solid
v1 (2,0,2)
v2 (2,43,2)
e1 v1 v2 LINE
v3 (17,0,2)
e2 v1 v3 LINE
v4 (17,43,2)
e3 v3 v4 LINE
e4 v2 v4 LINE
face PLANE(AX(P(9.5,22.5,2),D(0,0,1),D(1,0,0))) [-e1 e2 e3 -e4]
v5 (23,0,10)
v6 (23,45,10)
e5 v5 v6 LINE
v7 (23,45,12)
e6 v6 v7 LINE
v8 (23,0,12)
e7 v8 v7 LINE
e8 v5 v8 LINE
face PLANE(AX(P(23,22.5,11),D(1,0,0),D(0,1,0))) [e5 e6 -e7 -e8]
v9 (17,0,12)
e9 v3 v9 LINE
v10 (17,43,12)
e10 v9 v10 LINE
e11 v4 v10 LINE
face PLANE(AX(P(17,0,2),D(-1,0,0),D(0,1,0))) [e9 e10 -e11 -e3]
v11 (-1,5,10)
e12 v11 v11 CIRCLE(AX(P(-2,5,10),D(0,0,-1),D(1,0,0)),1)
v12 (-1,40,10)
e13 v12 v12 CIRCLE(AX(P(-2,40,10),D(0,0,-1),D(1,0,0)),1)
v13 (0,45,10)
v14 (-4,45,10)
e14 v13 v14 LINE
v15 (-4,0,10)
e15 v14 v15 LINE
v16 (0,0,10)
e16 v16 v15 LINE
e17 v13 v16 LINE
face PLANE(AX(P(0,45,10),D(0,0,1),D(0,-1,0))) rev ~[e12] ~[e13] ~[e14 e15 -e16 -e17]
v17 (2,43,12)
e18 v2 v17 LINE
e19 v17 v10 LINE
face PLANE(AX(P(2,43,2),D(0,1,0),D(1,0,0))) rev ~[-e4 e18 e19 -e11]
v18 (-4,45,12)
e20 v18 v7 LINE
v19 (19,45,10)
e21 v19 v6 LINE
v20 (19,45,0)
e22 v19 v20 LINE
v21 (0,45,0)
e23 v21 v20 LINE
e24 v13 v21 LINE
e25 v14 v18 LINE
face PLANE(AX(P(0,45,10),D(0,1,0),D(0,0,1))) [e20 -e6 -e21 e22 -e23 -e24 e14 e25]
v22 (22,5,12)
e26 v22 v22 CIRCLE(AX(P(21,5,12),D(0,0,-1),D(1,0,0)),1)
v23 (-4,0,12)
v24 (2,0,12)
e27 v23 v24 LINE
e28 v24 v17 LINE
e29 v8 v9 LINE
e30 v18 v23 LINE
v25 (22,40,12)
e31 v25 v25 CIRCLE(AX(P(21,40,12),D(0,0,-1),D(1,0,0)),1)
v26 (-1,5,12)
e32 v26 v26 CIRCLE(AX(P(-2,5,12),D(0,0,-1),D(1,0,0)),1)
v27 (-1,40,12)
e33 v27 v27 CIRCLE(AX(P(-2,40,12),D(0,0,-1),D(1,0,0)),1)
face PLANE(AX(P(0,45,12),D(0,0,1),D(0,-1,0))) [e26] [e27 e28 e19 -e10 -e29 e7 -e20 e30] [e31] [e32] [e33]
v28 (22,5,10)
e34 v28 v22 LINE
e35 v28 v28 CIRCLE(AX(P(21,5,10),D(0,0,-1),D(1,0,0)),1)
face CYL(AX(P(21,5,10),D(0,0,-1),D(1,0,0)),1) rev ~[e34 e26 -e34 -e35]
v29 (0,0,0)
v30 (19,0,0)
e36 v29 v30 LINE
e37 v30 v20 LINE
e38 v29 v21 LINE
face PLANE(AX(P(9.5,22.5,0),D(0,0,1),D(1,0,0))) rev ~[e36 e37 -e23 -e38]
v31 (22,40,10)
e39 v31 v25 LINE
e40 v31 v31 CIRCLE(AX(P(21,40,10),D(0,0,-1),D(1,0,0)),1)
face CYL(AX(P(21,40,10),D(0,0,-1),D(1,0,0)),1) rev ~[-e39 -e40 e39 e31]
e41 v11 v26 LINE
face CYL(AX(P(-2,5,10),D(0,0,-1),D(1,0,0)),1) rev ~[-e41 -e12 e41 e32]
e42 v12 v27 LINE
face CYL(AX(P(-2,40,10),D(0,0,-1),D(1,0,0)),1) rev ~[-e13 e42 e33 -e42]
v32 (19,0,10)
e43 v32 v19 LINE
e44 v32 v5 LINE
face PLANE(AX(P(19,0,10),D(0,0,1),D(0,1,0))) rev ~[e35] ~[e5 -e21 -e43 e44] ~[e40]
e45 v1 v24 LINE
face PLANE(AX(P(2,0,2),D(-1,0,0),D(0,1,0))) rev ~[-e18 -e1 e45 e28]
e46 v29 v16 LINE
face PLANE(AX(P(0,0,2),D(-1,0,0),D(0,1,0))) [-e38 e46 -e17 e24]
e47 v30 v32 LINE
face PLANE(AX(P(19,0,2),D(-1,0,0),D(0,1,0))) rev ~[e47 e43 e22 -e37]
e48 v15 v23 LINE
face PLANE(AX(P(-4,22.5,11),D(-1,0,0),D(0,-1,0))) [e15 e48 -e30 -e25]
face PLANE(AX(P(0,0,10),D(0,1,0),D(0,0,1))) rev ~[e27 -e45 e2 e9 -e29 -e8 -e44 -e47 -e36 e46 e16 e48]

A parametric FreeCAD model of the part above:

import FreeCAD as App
import Part
import Sketcher
Q = App.Units.Quantity

doc = App.newDocument("Part")
body = doc.addObject("PartDesign::Body", "Body")

sketch1 = body.newObject("Sketcher::SketchObject", "Sketch")
sketch1.AttachmentSupport = (doc.getObject("XY_Plane"), [""])
sketch1.MapMode = "FlatFace"
sketch1.addGeometry([
    Part.LineSegment(App.Vector(0, 45, 0), App.Vector(0, 0, 0)),
    Part.LineSegment(App.Vector(0, 0, 0), App.Vector(19, 0, 0)),
    Part.LineSegment(App.Vector(19, 0, 0), App.Vector(19, 45, 0)),
    Part.LineSegment(App.Vector(19, 45, 0), App.Vector(0, 45, 0)),
], False)
sketch1.addConstraint([
    Sketcher.Constraint("Coincident", 0, 2, 1, 1),
    Sketcher.Constraint("Coincident", 1, 2, 2, 1),
    Sketcher.Constraint("Coincident", 2, 2, 3, 1),
    Sketcher.Constraint("Coincident", 3, 2, 0, 1),
    Sketcher.Constraint("Vertical", 0),
    Sketcher.Constraint("Horizontal", 1),
    Sketcher.Constraint("Vertical", 2),
    Sketcher.Constraint("Horizontal", 3),
    Sketcher.Constraint("Coincident", 0, 2, -1, 1),
    Sketcher.Constraint("DistanceX", 1, 1, 1, 2, Q("19 mm")),
    Sketcher.Constraint("DistanceY", 0, 2, 0, 1, Q("45 mm")),
])
pad1 = body.newObject("PartDesign::Pad", "Pad")
pad1.Profile = sketch1
pad1.Length = 2

sketch2 = body.newObject("Sketcher::SketchObject", "Sketch001")
sketch2.AttachmentSupport = (doc.getObject("XY_Plane"), [""])
sketch2.MapMode = "FlatFace"
sketch2.AttachmentOffset = App.Placement(App.Vector(0, 0, 2), App.Rotation())
sketch2.addGeometry([
    Part.LineSegment(App.Vector(0, 45, 0), App.Vector(0, 0, 0)),
    Part.LineSegment(App.Vector(0, 0, 0), App.Vector(2, 0, 0)),
    Part.LineSegment(App.Vector(2, 0, 0), App.Vector(2, 43, 0)),
    Part.LineSegment(App.Vector(2, 43, 0), App.Vector(17, 43, 0)),
    Part.LineSegment(App.Vector(17, 43, 0), App.Vector(17, 0, 0)),
    Part.LineSegment(App.Vector(17, 0, 0), App.Vector(19, 0, 0)),
    Part.LineSegment(App.Vector(19, 0, 0), App.Vector(19, 45, 0)),
    Part.LineSegment(App.Vector(19, 45, 0), App.Vector(0, 45, 0)),
], False)
sketch2.addConstraint([
    Sketcher.Constraint("Coincident", 0, 2, 1, 1),
    Sketcher.Constraint("Coincident", 1, 2, 2, 1),
    Sketcher.Constraint("Coincident", 2, 2, 3, 1),
    Sketcher.Constraint("Coincident", 3, 2, 4, 1),
    Sketcher.Constraint("Coincident", 4, 2, 5, 1),
    Sketcher.Constraint("Coincident", 5, 2, 6, 1),
    Sketcher.Constraint("Coincident", 6, 2, 7, 1),
    Sketcher.Constraint("Coincident", 7, 2, 0, 1),
    Sketcher.Constraint("Vertical", 0),
    Sketcher.Constraint("Horizontal", 1),
    Sketcher.Constraint("Vertical", 2),
    Sketcher.Constraint("Horizontal", 3),
    Sketcher.Constraint("Vertical", 4),
    Sketcher.Constraint("Horizontal", 5),
    Sketcher.Constraint("Vertical", 6),
    Sketcher.Constraint("Horizontal", 7),
    Sketcher.Constraint("Coincident", 0, 2, -1, 1),
    Sketcher.Constraint("PointOnObject", 4, 2, -1),
    Sketcher.Constraint("Equal", 1, 5),
    Sketcher.Constraint("DistanceX", 1, 1, 1, 2, Q("2 mm")),
    Sketcher.Constraint("DistanceX", 3, 1, 3, 2, Q("15 mm")),
    Sketcher.Constraint("DistanceY", 0, 2, 0, 1, Q("45 mm")),
    Sketcher.Constraint("DistanceY", 2, 1, 2, 2, Q("43 mm")),
])
pad2 = body.newObject("PartDesign::Pad", "Pad001")
pad2.Profile = sketch2
pad2.Length = 10

sketch3 = body.newObject("Sketcher::SketchObject", "Sketch002")
sketch3.AttachmentSupport = (doc.getObject("YZ_Plane"), [""])
sketch3.MapMode = "FlatFace"
sketch3.AttachmentOffset = App.Placement(App.Vector(0, 0, 19), App.Rotation())
sketch3.addGeometry([
    Part.LineSegment(App.Vector(0, 12, 0), App.Vector(0, 10, 0)),
    Part.LineSegment(App.Vector(0, 10, 0), App.Vector(45, 10, 0)),
    Part.LineSegment(App.Vector(45, 10, 0), App.Vector(45, 12, 0)),
    Part.LineSegment(App.Vector(45, 12, 0), App.Vector(0, 12, 0)),
], False)
sketch3.addConstraint([
    Sketcher.Constraint("Coincident", 0, 2, 1, 1),
    Sketcher.Constraint("Coincident", 1, 2, 2, 1),
    Sketcher.Constraint("Coincident", 2, 2, 3, 1),
    Sketcher.Constraint("Coincident", 3, 2, 0, 1),
    Sketcher.Constraint("Vertical", 0),
    Sketcher.Constraint("Horizontal", 1),
    Sketcher.Constraint("Vertical", 2),
    Sketcher.Constraint("Horizontal", 3),
    Sketcher.Constraint("PointOnObject", 0, 2, -2),
    Sketcher.Constraint("DistanceX", 1, 1, 1, 2, Q("45 mm")),
    Sketcher.Constraint("DistanceY", 0, 2, 0, 1, Q("2 mm")),
    Sketcher.Constraint("DistanceY", -1, 1, 0, 2, Q("10 mm")),
])
pad3 = body.newObject("PartDesign::Pad", "Pad002")
pad3.Profile = sketch3
pad3.Length = 4

sketch4 = body.newObject("Sketcher::SketchObject", "Sketch003")
sketch4.AttachmentSupport = (doc.getObject("YZ_Plane"), [""])
sketch4.MapMode = "FlatFace"
sketch4.addGeometry([
    Part.LineSegment(App.Vector(45, 12, 0), App.Vector(45, 10, 0)),
    Part.LineSegment(App.Vector(45, 10, 0), App.Vector(0, 10, 0)),
    Part.LineSegment(App.Vector(0, 10, 0), App.Vector(0, 12, 0)),
    Part.LineSegment(App.Vector(0, 12, 0), App.Vector(45, 12, 0)),
], False)
sketch4.addConstraint([
    Sketcher.Constraint("Coincident", 0, 2, 1, 1),
    Sketcher.Constraint("Coincident", 1, 2, 2, 1),
    Sketcher.Constraint("Coincident", 2, 2, 3, 1),
    Sketcher.Constraint("Coincident", 3, 2, 0, 1),
    Sketcher.Constraint("Vertical", 0),
    Sketcher.Constraint("Horizontal", 1),
    Sketcher.Constraint("Vertical", 2),
    Sketcher.Constraint("Horizontal", 3),
    Sketcher.Constraint("PointOnObject", 1, 2, -2),
    Sketcher.Constraint("DistanceX", 1, 2, 1, 1, Q("45 mm")),
    Sketcher.Constraint("DistanceY", 0, 2, 0, 1, Q("2 mm")),
    Sketcher.Constraint("DistanceY", -1, 1, 0, 2, Q("10 mm")),
])
pad4 = body.newObject("PartDesign::Pad", "Pad003")
pad4.Profile = sketch4
pad4.Length = 4
pad4.Reversed = True

sketch5 = body.newObject("Sketcher::SketchObject", "Sketch004")
sketch5.AttachmentSupport = (doc.getObject("XY_Plane"), [""])
sketch5.MapMode = "FlatFace"
sketch5.AttachmentOffset = App.Placement(App.Vector(0, 0, 10), App.Rotation())
sketch5.addGeometry([
    Part.Circle(App.Vector(-2, 5, 0), App.Vector(0, 0, 1), 1),
    Part.Circle(App.Vector(-2, 40, 0), App.Vector(0, 0, 1), 1),
], False)
sketch5.addConstraint([
    Sketcher.Constraint("Equal", 0, 1),
    Sketcher.Constraint("Vertical", 0, 3, 1, 3),
    Sketcher.Constraint("Diameter", 0, Q("2 mm")),
    Sketcher.Constraint("DistanceX", 0, 3, -1, 1, Q("2 mm")),
    Sketcher.Constraint("DistanceY", -1, 1, 0, 3, Q("5 mm")),
    Sketcher.Constraint("DistanceY", -1, 1, 1, 3, Q("40 mm")),
])
pocket1 = body.newObject("PartDesign::Pocket", "Pocket")
pocket1.Profile = sketch5
pocket1.Length = 5
pocket1.Reversed = True

sketch6 = body.newObject("Sketcher::SketchObject", "Sketch005")
sketch6.AttachmentSupport = (doc.getObject("XY_Plane"), [""])
sketch6.MapMode = "FlatFace"
sketch6.AttachmentOffset = App.Placement(App.Vector(0, 0, 10), App.Rotation())
sketch6.addGeometry([
    Part.Circle(App.Vector(21, 5, 0), App.Vector(0, 0, 1), 1),
    Part.Circle(App.Vector(21, 40, 0), App.Vector(0, 0, 1), 1),
], False)
sketch6.addConstraint([
    Sketcher.Constraint("Equal", 0, 1),
    Sketcher.Constraint("Vertical", 0, 3, 1, 3),
    Sketcher.Constraint("Diameter", 0, Q("2 mm")),
    Sketcher.Constraint("DistanceX", -1, 1, 0, 3, Q("21 mm")),
    Sketcher.Constraint("DistanceY", -1, 1, 0, 3, Q("5 mm")),
    Sketcher.Constraint("DistanceY", -1, 1, 1, 3, Q("40 mm")),
])
pocket2 = body.newObject("PartDesign::Pocket", "Pocket001")
pocket2.Profile = sketch6
pocket2.Length = 5
pocket2.Reversed = True

doc.recompute()
